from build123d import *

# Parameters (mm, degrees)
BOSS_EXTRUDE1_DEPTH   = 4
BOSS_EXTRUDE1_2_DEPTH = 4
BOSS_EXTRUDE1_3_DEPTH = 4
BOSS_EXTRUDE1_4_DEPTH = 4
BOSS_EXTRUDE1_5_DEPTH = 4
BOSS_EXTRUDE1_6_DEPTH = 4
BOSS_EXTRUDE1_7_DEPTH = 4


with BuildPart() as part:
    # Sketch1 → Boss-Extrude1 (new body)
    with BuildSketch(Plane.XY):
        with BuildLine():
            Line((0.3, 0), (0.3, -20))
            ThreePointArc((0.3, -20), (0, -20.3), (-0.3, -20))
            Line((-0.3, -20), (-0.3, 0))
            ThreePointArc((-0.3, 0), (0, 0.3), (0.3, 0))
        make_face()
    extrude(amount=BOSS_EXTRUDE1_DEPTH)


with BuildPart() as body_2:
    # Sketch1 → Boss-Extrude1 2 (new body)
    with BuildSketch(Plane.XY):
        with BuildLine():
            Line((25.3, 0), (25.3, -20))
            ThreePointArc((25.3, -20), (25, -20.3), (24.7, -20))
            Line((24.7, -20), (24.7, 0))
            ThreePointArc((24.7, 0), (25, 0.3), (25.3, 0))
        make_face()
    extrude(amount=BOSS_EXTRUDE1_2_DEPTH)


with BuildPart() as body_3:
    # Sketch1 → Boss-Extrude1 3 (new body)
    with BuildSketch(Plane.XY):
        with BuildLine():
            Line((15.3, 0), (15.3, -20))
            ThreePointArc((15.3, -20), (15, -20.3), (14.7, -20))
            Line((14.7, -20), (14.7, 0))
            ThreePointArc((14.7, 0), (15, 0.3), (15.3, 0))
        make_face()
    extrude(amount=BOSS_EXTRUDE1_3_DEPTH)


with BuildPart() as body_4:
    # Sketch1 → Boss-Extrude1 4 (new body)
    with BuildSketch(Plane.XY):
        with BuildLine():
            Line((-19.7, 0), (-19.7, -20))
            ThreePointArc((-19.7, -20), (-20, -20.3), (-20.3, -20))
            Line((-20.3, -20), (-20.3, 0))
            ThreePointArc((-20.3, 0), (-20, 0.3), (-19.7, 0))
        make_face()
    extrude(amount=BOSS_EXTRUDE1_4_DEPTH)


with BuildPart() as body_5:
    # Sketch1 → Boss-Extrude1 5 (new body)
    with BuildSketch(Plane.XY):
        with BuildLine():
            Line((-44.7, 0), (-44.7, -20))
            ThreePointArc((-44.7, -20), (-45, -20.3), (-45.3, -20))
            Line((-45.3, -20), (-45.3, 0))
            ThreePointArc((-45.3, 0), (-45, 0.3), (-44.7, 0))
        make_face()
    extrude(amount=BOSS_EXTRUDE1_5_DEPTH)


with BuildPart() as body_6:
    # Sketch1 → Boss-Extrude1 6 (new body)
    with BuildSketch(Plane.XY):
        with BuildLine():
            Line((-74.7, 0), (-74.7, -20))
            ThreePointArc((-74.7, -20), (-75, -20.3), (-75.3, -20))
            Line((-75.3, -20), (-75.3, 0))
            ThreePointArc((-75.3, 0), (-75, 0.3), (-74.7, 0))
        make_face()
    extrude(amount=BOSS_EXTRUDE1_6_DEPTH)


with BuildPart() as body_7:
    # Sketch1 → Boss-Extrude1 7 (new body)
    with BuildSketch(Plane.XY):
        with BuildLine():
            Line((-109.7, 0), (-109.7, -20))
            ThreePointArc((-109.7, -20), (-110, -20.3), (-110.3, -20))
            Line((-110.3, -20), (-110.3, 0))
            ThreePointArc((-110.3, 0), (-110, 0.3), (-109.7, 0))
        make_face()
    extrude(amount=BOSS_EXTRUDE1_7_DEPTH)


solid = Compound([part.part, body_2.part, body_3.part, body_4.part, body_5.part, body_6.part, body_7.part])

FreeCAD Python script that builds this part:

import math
import FreeCAD as App
import Part
import Sketcher
Q = App.Units.Quantity

doc = App.newDocument("Part")
body = doc.addObject("PartDesign::Body", "Body")

# Sketch on XY plane
sketch1 = body.newObject("Sketcher::SketchObject", "Sketch")
sketch1.AttachmentSupport = (doc.getObject("XY_Plane"), [""])
sketch1.MapMode = "FlatFace"
sketch1.addGeometry([
    Part.LineSegment(App.Vector(0.3, -20, 0), App.Vector(0.3, 0, 0)),
    Part.ArcOfCircle(Part.Circle(App.Vector(0, 0, 0), App.Vector(0, 0, 1), 0.3), math.radians(0), math.radians(180)),
    Part.LineSegment(App.Vector(-0.3, 0, 0), App.Vector(-0.3, -20, 0)),
    Part.ArcOfCircle(Part.Circle(App.Vector(0, -20, 0), App.Vector(0, 0, 1), 0.3), math.radians(180), math.radians(360)),
], False)
sketch1.addConstraint([
    Sketcher.Constraint("Tangent", 0, 2, 1, 1),
    Sketcher.Constraint("Tangent", 1, 2, 2, 1),
    Sketcher.Constraint("Tangent", 2, 2, 3, 1),
    Sketcher.Constraint("Tangent", 3, 2, 0, 1),
    Sketcher.Constraint("Vertical", 0),
    Sketcher.Constraint("Vertical", 2),
    Sketcher.Constraint("Coincident", 1, 3, -1, 1),
    Sketcher.Constraint("Radius", 1, Q("0.3 mm")),
    Sketcher.Constraint("DistanceY", 0, 1, 0, 2, Q("20 mm")),
])
pad1 = body.newObject("PartDesign::Pad", "Pad")
pad1.Profile = sketch1
pad1.Length = 4
body2 = doc.addObject("PartDesign::Body", "Body001")

# Sketch on XY plane
sketch2 = body2.newObject("Sketcher::SketchObject", "Sketch001")
sketch2.AttachmentSupport = (doc.getObject("XY_Plane001"), [""])
sketch2.MapMode = "FlatFace"
sketch2.addGeometry([
    Part.LineSegment(App.Vector(25.3, -20, 0), App.Vector(25.3, 0, 0)),
    Part.ArcOfCircle(Part.Circle(App.Vector(25, 0, 0), App.Vector(0, 0, 1), 0.3), math.radians(0), math.radians(180)),
    Part.LineSegment(App.Vector(24.7, 0, 0), App.Vector(24.7, -20, 0)),
    Part.ArcOfCircle(Part.Circle(App.Vector(25, -20, 0), App.Vector(0, 0, 1), 0.3), math.radians(180), math.radians(360)),
], False)
sketch2.addConstraint([
    Sketcher.Constraint("Tangent", 0, 2, 1, 1),
    Sketcher.Constraint("Tangent", 1, 2, 2, 1),
    Sketcher.Constraint("Tangent", 2, 2, 3, 1),
    Sketcher.Constraint("Tangent", 3, 2, 0, 1),
    Sketcher.Constraint("Vertical", 0),
    Sketcher.Constraint("Vertical", 2),
    Sketcher.Constraint("PointOnObject", 1, 3, -1),
    Sketcher.Constraint("Radius", 1, Q("0.3 mm")),
    Sketcher.Constraint("DistanceY", 0, 1, 0, 2, Q("20 mm")),
    Sketcher.Constraint("DistanceX", -1, 1, 1, 3, Q("25 mm")),
])
pad2 = body2.newObject("PartDesign::Pad", "Pad001")
pad2.Profile = sketch2
pad2.Length = 4
body3 = doc.addObject("PartDesign::Body", "Body002")

# Sketch on XY plane
sketch3 = body3.newObject("Sketcher::SketchObject", "Sketch002")
sketch3.AttachmentSupport = (doc.getObject("XY_Plane002"), [""])
sketch3.MapMode = "FlatFace"
sketch3.addGeometry([
    Part.LineSegment(App.Vector(15.3, -20, 0), App.Vector(15.3, 0, 0)),
    Part.ArcOfCircle(Part.Circle(App.Vector(15, 0, 0), App.Vector(0, 0, 1), 0.3), math.radians(0), math.radians(180)),
    Part.LineSegment(App.Vector(14.7, 0, 0), App.Vector(14.7, -20, 0)),
    Part.ArcOfCircle(Part.Circle(App.Vector(15, -20, 0), App.Vector(0, 0, 1), 0.3), math.radians(180), math.radians(360)),
], False)
sketch3.addConstraint([
    Sketcher.Constraint("Tangent", 0, 2, 1, 1),
    Sketcher.Constraint("Tangent", 1, 2, 2, 1),
    Sketcher.Constraint("Tangent", 2, 2, 3, 1),
    Sketcher.Constraint("Tangent", 3, 2, 0, 1),
    Sketcher.Constraint("Vertical", 0),
    Sketcher.Constraint("Vertical", 2),
    Sketcher.Constraint("PointOnObject", 1, 3, -1),
    Sketcher.Constraint("Radius", 1, Q("0.3 mm")),
    Sketcher.Constraint("DistanceY", 0, 1, 0, 2, Q("20 mm")),
    Sketcher.Constraint("DistanceX", -1, 1, 1, 3, Q("15 mm")),
])
pad3 = body3.newObject("PartDesign::Pad", "Pad002")
pad3.Profile = sketch3
pad3.Length = 4
body4 = doc.addObject("PartDesign::Body", "Body003")

# Sketch on XY plane
sketch4 = body4.newObject("Sketcher::SketchObject", "Sketch003")
sketch4.AttachmentSupport = (doc.getObject("XY_Plane003"), [""])
sketch4.MapMode = "FlatFace"
sketch4.addGeometry([
    Part.LineSegment(App.Vector(-19.7, -20, 0), App.Vector(-19.7, 0, 0)),
    Part.ArcOfCircle(Part.Circle(App.Vector(-20, 0, 0), App.Vector(0, 0, 1), 0.3), math.radians(0), math.radians(180)),
    Part.LineSegment(App.Vector(-20.3, 0, 0), App.Vector(-20.3, -20, 0)),
    Part.ArcOfCircle(Part.Circle(App.Vector(-20, -20, 0), App.Vector(0, 0, 1), 0.3), math.radians(180), math.radians(360)),
], False)
sketch4.addConstraint([
    Sketcher.Constraint("Tangent", 0, 2, 1, 1),
    Sketcher.Constraint("Tangent", 1, 2, 2, 1),
    Sketcher.Constraint("Tangent", 2, 2, 3, 1),
    Sketcher.Constraint("Tangent", 3, 2, 0, 1),
    Sketcher.Constraint("Vertical", 0),
    Sketcher.Constraint("Vertical", 2),
    Sketcher.Constraint("PointOnObject", 1, 3, -1),
    Sketcher.Constraint("Radius", 1, Q("0.3 mm")),
    Sketcher.Constraint("DistanceY", 0, 1, 0, 2, Q("20 mm")),
    Sketcher.Constraint("DistanceX", 1, 3, -1, 1, Q("20 mm")),
])
pad4 = body4.newObject("PartDesign::Pad", "Pad003")
pad4.Profile = sketch4
pad4.Length = 4
body5 = doc.addObject("PartDesign::Body", "Body004")

# Sketch on XY plane
sketch5 = body5.newObject("Sketcher::SketchObject", "Sketch004")
sketch5.AttachmentSupport = (doc.getObject("XY_Plane004"), [""])
sketch5.MapMode = "FlatFace"
sketch5.addGeometry([
    Part.LineSegment(App.Vector(-44.7, -20, 0), App.Vector(-44.7, 0, 0)),
    Part.ArcOfCircle(Part.Circle(App.Vector(-45, 0, 0), App.Vector(0, 0, 1), 0.3), math.radians(0), math.radians(180)),
    Part.LineSegment(App.Vector(-45.3, 0, 0), App.Vector(-45.3, -20, 0)),
    Part.ArcOfCircle(Part.Circle(App.Vector(-45, -20, 0), App.Vector(0, 0, 1), 0.3), math.radians(180), math.radians(360)),
], False)
sketch5.addConstraint([
    Sketcher.Constraint("Tangent", 0, 2, 1, 1),
    Sketcher.Constraint("Tangent", 1, 2, 2, 1),
    Sketcher.Constraint("Tangent", 2, 2, 3, 1),
    Sketcher.Constraint("Tangent", 3, 2, 0, 1),
    Sketcher.Constraint("Vertical", 0),
    Sketcher.Constraint("Vertical", 2),
    Sketcher.Constraint("PointOnObject", 1, 3, -1),
    Sketcher.Constraint("Radius", 1, Q("0.3 mm")),
    Sketcher.Constraint("DistanceY", 0, 1, 0, 2, Q("20 mm")),
    Sketcher.Constraint("DistanceX", 1, 3, -1, 1, Q("45 mm")),
])
pad5 = body5.newObject("PartDesign::Pad", "Pad004")
pad5.Profile = sketch5
pad5.Length = 4
body6 = doc.addObject("PartDesign::Body", "Body005")

# Sketch on XY plane
sketch6 = body6.newObject("Sketcher::SketchObject", "Sketch005")
sketch6.AttachmentSupport = (doc.getObject("XY_Plane005"), [""])
sketch6.MapMode = "FlatFace"
sketch6.addGeometry([
    Part.LineSegment(App.Vector(-74.7, -20, 0), App.Vector(-74.7, 0, 0)),
    Part.ArcOfCircle(Part.Circle(App.Vector(-75, 0, 0), App.Vector(0, 0, 1), 0.3), math.radians(0), math.radians(180)),
    Part.LineSegment(App.Vector(-75.3, 0, 0), App.Vector(-75.3, -20, 0)),
    Part.ArcOfCircle(Part.Circle(App.Vector(-75, -20, 0), App.Vector(0, 0, 1), 0.3), math.radians(180), math.radians(360)),
], False)
sketch6.addConstraint([
    Sketcher.Constraint("Tangent", 0, 2, 1, 1),
    Sketcher.Constraint("Tangent", 1, 2, 2, 1),
    Sketcher.Constraint("Tangent", 2, 2, 3, 1),
    Sketcher.Constraint("Tangent", 3, 2, 0, 1),
    Sketcher.Constraint("Vertical", 0),
    Sketcher.Constraint("Vertical", 2),
    Sketcher.Constraint("PointOnObject", 1, 3, -1),
    Sketcher.Constraint("Radius", 1, Q("0.3 mm")),
    Sketcher.Constraint("DistanceY", 0, 1, 0, 2, Q("20 mm")),
    Sketcher.Constraint("DistanceX", 1, 3, -1, 1, Q("75 mm")),
])
pad6 = body6.newObject("PartDesign::Pad", "Pad005")
pad6.Profile = sketch6
pad6.Length = 4
body7 = doc.addObject("PartDesign::Body", "Body006")

# Sketch on XY plane
sketch7 = body7.newObject("Sketcher::SketchObject", "Sketch006")
sketch7.AttachmentSupport = (doc.getObject("XY_Plane006"), [""])
sketch7.MapMode = "FlatFace"
sketch7.addGeometry([
    Part.LineSegment(App.Vector(-109.7, -20, 0), App.Vector(-109.7, 0, 0)),
    Part.ArcOfCircle(Part.Circle(App.Vector(-110, 0, 0), App.Vector(0, 0, 1), 0.3), math.radians(0), math.radians(180)),
    Part.LineSegment(App.Vector(-110.3, 0, 0), App.Vector(-110.3, -20, 0)),
    Part.ArcOfCircle(Part.Circle(App.Vector(-110, -20, 0), App.Vector(0, 0, 1), 0.3), math.radians(180), math.radians(360)),
], False)
sketch7.addConstraint([
    Sketcher.Constraint("Tangent", 0, 2, 1, 1),
    Sketcher.Constraint("Tangent", 1, 2, 2, 1),
    Sketcher.Constraint("Tangent", 2, 2, 3, 1),
    Sketcher.Constraint("Tangent", 3, 2, 0, 1),
    Sketcher.Constraint("Vertical", 0),
    Sketcher.Constraint("Vertical", 2),
    Sketcher.Constraint("PointOnObject", 1, 3, -1),
    Sketcher.Constraint("Radius", 1, Q("0.3 mm")),
    Sketcher.Constraint("DistanceY", 0, 1, 0, 2, Q("20 mm")),
    Sketcher.Constraint("DistanceX", 1, 3, -1, 1, Q("110 mm")),
])
pad7 = body7.newObject("PartDesign::Pad", "Pad006")
pad7.Profile = sketch7
pad7.Length = 4

doc.recompute()
